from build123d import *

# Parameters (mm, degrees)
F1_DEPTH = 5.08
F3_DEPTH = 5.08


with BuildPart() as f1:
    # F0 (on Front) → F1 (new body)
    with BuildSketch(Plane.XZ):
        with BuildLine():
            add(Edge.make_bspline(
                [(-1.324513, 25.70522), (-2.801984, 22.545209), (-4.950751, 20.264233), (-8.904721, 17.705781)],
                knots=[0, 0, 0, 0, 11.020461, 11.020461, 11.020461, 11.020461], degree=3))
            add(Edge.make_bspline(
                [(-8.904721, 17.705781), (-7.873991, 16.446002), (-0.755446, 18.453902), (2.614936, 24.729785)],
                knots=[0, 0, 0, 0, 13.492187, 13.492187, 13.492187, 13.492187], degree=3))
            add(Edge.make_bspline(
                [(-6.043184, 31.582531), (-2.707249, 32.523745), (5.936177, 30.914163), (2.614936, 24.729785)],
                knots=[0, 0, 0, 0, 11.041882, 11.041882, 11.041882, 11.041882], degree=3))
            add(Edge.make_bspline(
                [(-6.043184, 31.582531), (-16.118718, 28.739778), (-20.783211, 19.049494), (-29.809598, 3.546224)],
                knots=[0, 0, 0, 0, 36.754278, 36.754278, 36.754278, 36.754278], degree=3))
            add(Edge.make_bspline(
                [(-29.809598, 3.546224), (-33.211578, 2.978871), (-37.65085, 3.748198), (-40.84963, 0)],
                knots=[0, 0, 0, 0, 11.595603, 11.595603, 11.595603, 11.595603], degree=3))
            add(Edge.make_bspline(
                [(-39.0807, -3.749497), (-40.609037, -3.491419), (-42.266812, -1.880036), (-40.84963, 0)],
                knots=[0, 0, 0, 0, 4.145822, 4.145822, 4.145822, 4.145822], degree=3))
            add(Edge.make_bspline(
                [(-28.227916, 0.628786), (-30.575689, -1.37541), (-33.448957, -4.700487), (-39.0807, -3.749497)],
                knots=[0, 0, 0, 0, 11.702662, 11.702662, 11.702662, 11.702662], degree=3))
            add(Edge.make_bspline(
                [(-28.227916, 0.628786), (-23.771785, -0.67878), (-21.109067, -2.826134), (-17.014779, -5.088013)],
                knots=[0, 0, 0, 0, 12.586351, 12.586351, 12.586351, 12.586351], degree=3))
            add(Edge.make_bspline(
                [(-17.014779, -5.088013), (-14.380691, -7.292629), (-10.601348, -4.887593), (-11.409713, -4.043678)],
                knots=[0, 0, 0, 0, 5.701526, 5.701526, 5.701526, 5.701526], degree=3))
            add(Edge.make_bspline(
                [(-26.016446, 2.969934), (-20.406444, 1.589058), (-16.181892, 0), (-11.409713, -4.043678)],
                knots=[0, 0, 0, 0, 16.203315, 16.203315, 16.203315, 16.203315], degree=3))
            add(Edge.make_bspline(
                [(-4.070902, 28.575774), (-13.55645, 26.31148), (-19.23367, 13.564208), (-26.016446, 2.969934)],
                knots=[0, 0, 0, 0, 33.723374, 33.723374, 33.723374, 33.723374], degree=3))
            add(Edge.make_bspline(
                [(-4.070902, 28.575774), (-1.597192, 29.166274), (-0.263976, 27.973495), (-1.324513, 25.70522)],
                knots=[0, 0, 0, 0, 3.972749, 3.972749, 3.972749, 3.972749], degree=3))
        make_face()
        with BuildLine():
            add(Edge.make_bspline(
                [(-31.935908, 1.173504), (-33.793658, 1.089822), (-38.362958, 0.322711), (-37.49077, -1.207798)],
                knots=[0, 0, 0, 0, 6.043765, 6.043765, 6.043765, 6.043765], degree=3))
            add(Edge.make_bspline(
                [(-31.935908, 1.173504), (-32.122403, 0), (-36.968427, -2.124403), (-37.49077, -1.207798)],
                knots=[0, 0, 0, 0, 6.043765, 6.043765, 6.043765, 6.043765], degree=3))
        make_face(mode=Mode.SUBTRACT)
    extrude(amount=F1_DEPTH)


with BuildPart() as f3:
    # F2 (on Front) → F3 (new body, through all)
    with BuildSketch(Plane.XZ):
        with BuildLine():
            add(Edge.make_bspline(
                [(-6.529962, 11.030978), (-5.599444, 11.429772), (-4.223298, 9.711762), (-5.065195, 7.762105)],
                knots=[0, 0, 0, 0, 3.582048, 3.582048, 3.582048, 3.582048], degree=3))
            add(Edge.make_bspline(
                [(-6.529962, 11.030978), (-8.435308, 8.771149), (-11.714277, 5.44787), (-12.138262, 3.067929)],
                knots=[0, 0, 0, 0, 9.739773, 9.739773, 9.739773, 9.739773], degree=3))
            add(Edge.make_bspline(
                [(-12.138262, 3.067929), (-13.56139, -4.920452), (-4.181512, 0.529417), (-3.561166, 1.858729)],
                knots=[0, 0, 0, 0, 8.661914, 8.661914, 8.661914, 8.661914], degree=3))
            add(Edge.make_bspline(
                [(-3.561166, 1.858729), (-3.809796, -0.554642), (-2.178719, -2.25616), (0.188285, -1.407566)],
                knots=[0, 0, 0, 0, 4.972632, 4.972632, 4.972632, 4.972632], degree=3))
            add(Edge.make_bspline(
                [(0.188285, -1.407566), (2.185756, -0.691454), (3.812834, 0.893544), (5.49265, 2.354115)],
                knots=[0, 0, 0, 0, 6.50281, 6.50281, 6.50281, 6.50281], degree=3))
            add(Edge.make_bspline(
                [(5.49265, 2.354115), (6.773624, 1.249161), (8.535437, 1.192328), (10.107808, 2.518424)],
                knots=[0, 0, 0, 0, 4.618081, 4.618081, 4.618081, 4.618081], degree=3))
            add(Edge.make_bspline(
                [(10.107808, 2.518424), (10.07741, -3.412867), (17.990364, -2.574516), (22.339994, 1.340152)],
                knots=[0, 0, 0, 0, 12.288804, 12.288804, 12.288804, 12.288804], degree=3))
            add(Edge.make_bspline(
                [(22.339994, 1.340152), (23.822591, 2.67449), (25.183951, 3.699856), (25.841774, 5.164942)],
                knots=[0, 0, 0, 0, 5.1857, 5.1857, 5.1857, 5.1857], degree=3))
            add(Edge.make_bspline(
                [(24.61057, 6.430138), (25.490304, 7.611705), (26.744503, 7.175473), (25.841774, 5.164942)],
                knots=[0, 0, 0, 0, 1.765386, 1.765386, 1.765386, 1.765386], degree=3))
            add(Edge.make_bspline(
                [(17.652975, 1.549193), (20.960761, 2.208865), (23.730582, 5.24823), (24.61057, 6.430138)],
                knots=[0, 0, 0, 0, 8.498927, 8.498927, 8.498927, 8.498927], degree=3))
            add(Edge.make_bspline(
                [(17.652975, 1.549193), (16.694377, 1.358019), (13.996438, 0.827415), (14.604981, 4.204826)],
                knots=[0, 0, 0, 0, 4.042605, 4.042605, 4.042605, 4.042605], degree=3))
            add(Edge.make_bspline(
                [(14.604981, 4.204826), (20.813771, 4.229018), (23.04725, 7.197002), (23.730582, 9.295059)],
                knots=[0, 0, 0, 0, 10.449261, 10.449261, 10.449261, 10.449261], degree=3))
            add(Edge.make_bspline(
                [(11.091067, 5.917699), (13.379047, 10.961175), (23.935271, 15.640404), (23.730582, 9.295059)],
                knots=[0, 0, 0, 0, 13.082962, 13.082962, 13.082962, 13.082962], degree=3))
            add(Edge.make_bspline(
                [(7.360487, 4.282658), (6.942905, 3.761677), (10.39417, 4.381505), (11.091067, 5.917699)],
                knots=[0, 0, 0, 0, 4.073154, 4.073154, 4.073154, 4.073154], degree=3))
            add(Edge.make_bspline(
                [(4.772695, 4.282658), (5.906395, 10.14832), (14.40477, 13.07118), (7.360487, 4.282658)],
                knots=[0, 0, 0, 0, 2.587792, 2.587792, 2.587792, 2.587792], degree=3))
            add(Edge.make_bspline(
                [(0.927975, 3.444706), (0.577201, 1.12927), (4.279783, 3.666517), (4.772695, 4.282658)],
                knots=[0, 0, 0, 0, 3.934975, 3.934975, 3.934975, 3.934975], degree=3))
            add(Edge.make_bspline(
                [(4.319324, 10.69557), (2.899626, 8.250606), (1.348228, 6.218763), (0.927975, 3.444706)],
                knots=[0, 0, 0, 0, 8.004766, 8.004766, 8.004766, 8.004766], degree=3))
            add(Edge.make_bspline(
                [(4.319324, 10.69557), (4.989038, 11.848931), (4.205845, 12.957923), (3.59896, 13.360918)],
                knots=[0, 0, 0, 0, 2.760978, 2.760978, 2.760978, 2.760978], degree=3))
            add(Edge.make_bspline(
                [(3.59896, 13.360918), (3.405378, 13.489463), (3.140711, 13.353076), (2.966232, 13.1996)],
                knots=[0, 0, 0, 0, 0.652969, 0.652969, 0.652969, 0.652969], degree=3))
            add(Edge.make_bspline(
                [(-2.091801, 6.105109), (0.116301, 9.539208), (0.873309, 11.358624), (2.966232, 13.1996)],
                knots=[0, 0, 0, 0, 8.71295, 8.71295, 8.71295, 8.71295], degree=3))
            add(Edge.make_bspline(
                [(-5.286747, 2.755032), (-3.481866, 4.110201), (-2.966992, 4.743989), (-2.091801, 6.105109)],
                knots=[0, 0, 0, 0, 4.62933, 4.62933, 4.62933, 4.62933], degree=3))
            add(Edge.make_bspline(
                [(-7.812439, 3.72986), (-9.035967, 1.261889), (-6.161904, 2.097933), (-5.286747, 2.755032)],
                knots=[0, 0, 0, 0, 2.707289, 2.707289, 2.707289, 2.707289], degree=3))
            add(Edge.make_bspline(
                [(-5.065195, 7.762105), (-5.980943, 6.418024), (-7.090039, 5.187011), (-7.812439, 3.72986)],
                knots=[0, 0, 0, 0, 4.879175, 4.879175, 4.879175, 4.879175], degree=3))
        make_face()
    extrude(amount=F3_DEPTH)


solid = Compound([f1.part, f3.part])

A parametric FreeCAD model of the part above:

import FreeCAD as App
import Part
import Sketcher
from FreeCAD import Vector
Q = App.Units.Quantity

doc = App.newDocument("Part")
body = doc.addObject("PartDesign::Body", "Body")

sketch1 = body.newObject("Sketcher::SketchObject", "Sketch")
sketch1.AttachmentSupport = (doc.getObject("XZ_Plane"), [""])
sketch1.MapMode = "FlatFace"
sketch1.addGeometry(Part.BSplineCurve([Vector(-1.324513, 25.70522, 0), Vector(-2.801984, 22.545209, 0), Vector(-4.950751, 20.264233, 0), Vector(-8.904721, 17.705781, 0)], [4, 4], [0, 11.020461], False, 3, [1, 1, 1, 1], False), False)
sketch1.addGeometry(Part.BSplineCurve([Vector(-8.904721, 17.705781, 0), Vector(-7.873991, 16.446002, 0), Vector(-0.755446, 18.453902, 0), Vector(2.614936, 24.729785, 0)], [4, 4], [0, 13.492187], False, 3, [1, 1, 1, 1], False), False)
sketch1.addGeometry(Part.BSplineCurve([Vector(-6.043184, 31.582531, 0), Vector(-2.707249, 32.523745, 0), Vector(5.936177, 30.914163, 0), Vector(2.614936, 24.729785, 0)], [4, 4], [0, 11.041882], False, 3, [1, 1, 1, 1], False), False)
sketch1.addGeometry(Part.BSplineCurve([Vector(-6.043184, 31.582531, 0), Vector(-16.118718, 28.739778, 0), Vector(-20.783211, 19.049494, 0), Vector(-29.809598, 3.546224, 0)], [4, 4], [0, 36.754278], False, 3, [1, 1, 1, 1], False), False)
sketch1.addGeometry(Part.BSplineCurve([Vector(-29.809598, 3.546224, 0), Vector(-33.211578, 2.978871, 0), Vector(-37.65085, 3.748198, 0), Vector(-40.84963, 0, 0)], [4, 4], [0, 11.595603], False, 3, [1, 1, 1, 1], False), False)
sketch1.addGeometry(Part.BSplineCurve([Vector(-39.0807, -3.749497, 0), Vector(-40.609037, -3.491419, 0), Vector(-42.266812, -1.880036, 0), Vector(-40.84963, 0, 0)], [4, 4], [0, 4.145822], False, 3, [1, 1, 1, 1], False), False)
sketch1.addGeometry(Part.BSplineCurve([Vector(-28.227916, 0.628786, 0), Vector(-30.575689, -1.37541, 0), Vector(-33.448957, -4.700487, 0), Vector(-39.0807, -3.749497, 0)], [4, 4], [0, 11.702662], False, 3, [1, 1, 1, 1], False), False)
sketch1.addGeometry(Part.BSplineCurve([Vector(-28.227916, 0.628786, 0), Vector(-23.771785, -0.67878, 0), Vector(-21.109067, -2.826134, 0), Vector(-17.014779, -5.088013, 0)], [4, 4], [0, 12.586351], False, 3, [1, 1, 1, 1], False), False)
sketch1.addGeometry(Part.BSplineCurve([Vector(-17.014779, -5.088013, 0), Vector(-14.380691, -7.292629, 0), Vector(-10.601348, -4.887593, 0), Vector(-11.409713, -4.043678, 0)], [4, 4], [0, 5.701526], False, 3, [1, 1, 1, 1], False), False)
sketch1.addGeometry(Part.BSplineCurve([Vector(-26.016446, 2.969934, 0), Vector(-20.406444, 1.589058, 0), Vector(-16.181892, 0, 0), Vector(-11.409713, -4.043678, 0)], [4, 4], [0, 16.203315], False, 3, [1, 1, 1, 1], False), False)
sketch1.addGeometry(Part.BSplineCurve([Vector(-4.070902, 28.575774, 0), Vector(-13.55645, 26.31148, 0), Vector(-19.23367, 13.564208, 0), Vector(-26.016446, 2.969934, 0)], [4, 4], [0, 33.723374], False, 3, [1, 1, 1, 1], False), False)
sketch1.addGeometry(Part.BSplineCurve([Vector(-4.070902, 28.575774, 0), Vector(-1.597192, 29.166274, 0), Vector(-0.263976, 27.973495, 0), Vector(-1.324513, 25.70522, 0)], [4, 4], [0, 3.972749], False, 3, [1, 1, 1, 1], False), False)
sketch1.addGeometry(Part.BSplineCurve([Vector(-31.935908, 1.173504, 0), Vector(-33.793658, 1.089822, 0), Vector(-38.362958, 0.322711, 0), Vector(-37.49077, -1.207798, 0)], [4, 4], [0, 6.043765], False, 3, [1, 1, 1, 1], False), False)
sketch1.addGeometry(Part.BSplineCurve([Vector(-31.935908, 1.173504, 0), Vector(-32.122403, 0, 0), Vector(-36.968427, -2.124403, 0), Vector(-37.49077, -1.207798, 0)], [4, 4], [0, 6.043765], False, 3, [1, 1, 1, 1], False), False)
sketch1.addConstraint(Sketcher.Constraint("Block", 0))
sketch1.addConstraint(Sketcher.Constraint("Block", 1))
sketch1.addConstraint(Sketcher.Constraint("Block", 2))
sketch1.addConstraint(Sketcher.Constraint("Block", 3))
sketch1.addConstraint(Sketcher.Constraint("Block", 4))
sketch1.addConstraint(Sketcher.Constraint("Block", 5))
sketch1.addConstraint(Sketcher.Constraint("Block", 6))
sketch1.addConstraint(Sketcher.Constraint("Block", 7))
sketch1.addConstraint(Sketcher.Constraint("Block", 8))
sketch1.addConstraint(Sketcher.Constraint("Block", 9))
sketch1.addConstraint(Sketcher.Constraint("Block", 10))
sketch1.addConstraint(Sketcher.Constraint("Block", 11))
sketch1.addConstraint(Sketcher.Constraint("Block", 12))
sketch1.addConstraint(Sketcher.Constraint("Block", 13))
pad1 = body.newObject("PartDesign::Pad", "Pad")
pad1.Profile = sketch1
pad1.Length = Q("0.2 in")
body2 = doc.addObject("PartDesign::Body", "Body001")

sketch2 = body2.newObject("Sketcher::SketchObject", "Sketch001")
sketch2.AttachmentSupport = (doc.getObject("XZ_Plane001"), [""])
sketch2.MapMode = "FlatFace"
sketch2.addGeometry(Part.BSplineCurve([Vector(-6.529962, 11.030978, 0), Vector(-5.599444, 11.429772, 0), Vector(-4.223298, 9.711762, 0), Vector(-5.065195, 7.762105, 0)], [4, 4], [0, 3.582048], False, 3, [1, 1, 1, 1], False), False)
sketch2.addGeometry(Part.BSplineCurve([Vector(-6.529962, 11.030978, 0), Vector(-8.435308, 8.771149, 0), Vector(-11.714277, 5.44787, 0), Vector(-12.138262, 3.067929, 0)], [4, 4], [0, 9.739773], False, 3, [1, 1, 1, 1], False), False)
sketch2.addGeometry(Part.BSplineCurve([Vector(-12.138262, 3.067929, 0), Vector(-13.56139, -4.920452, 0), Vector(-4.181512, 0.529417, 0), Vector(-3.561166, 1.858729, 0)], [4, 4], [0, 8.661914], False, 3, [1, 1, 1, 1], False), False)
sketch2.addGeometry(Part.BSplineCurve([Vector(-3.561166, 1.858729, 0), Vector(-3.809796, -0.554642, 0), Vector(-2.178719, -2.25616, 0), Vector(0.188285, -1.407566, 0)], [4, 4], [0, 4.972632], False, 3, [1, 1, 1, 1], False), False)
sketch2.addGeometry(Part.BSplineCurve([Vector(0.188285, -1.407566, 0), Vector(2.185756, -0.691454, 0), Vector(3.812834, 0.893544, 0), Vector(5.49265, 2.354115, 0)], [4, 4], [0, 6.50281], False, 3, [1, 1, 1, 1], False), False)
sketch2.addGeometry(Part.BSplineCurve([Vector(5.49265, 2.354115, 0), Vector(6.773624, 1.249161, 0), Vector(8.535437, 1.192328, 0), Vector(10.107808, 2.518424, 0)], [4, 4], [0, 4.618081], False, 3, [1, 1, 1, 1], False), False)
sketch2.addGeometry(Part.BSplineCurve([Vector(10.107808, 2.518424, 0), Vector(10.07741, -3.412867, 0), Vector(17.990364, -2.574516, 0), Vector(22.339994, 1.340152, 0)], [4, 4], [0, 12.288804], False, 3, [1, 1, 1, 1], False), False)
sketch2.addGeometry(Part.BSplineCurve([Vector(22.339994, 1.340152, 0), Vector(23.822591, 2.67449, 0), Vector(25.183951, 3.699856, 0), Vector(25.841774, 5.164942, 0)], [4, 4], [0, 5.1857], False, 3, [1, 1, 1, 1], False), False)
sketch2.addGeometry(Part.BSplineCurve([Vector(24.61057, 6.430138, 0), Vector(25.490304, 7.611705, 0), Vector(26.744503, 7.175473, 0), Vector(25.841774, 5.164942, 0)], [4, 4], [0, 1.765386], False, 3, [1, 1, 1, 1], False), False)
sketch2.addGeometry(Part.BSplineCurve([Vector(17.652975, 1.549193, 0), Vector(20.960761, 2.208865, 0), Vector(23.730582, 5.24823, 0), Vector(24.61057, 6.430138, 0)], [4, 4], [0, 8.498927], False, 3, [1, 1, 1, 1], False), False)
sketch2.addGeometry(Part.BSplineCurve([Vector(17.652975, 1.549193, 0), Vector(16.694377, 1.358019, 0), Vector(13.996438, 0.827415, 0), Vector(14.604981, 4.204826, 0)], [4, 4], [0, 4.042605], False, 3, [1, 1, 1, 1], False), False)
sketch2.addGeometry(Part.BSplineCurve([Vector(14.604981, 4.204826, 0), Vector(20.813771, 4.229018, 0), Vector(23.04725, 7.197002, 0), Vector(23.730582, 9.295059, 0)], [4, 4], [0, 10.449261], False, 3, [1, 1, 1, 1], False), False)
sketch2.addGeometry(Part.BSplineCurve([Vector(11.091067, 5.917699, 0), Vector(13.379047, 10.961175, 0), Vector(23.935271, 15.640404, 0), Vector(23.730582, 9.295059, 0)], [4, 4], [0, 13.082962], False, 3, [1, 1, 1, 1], False), False)
sketch2.addGeometry(Part.BSplineCurve([Vector(7.360487, 4.282658, 0), Vector(6.942905, 3.761677, 0), Vector(10.39417, 4.381505, 0), Vector(11.091067, 5.917699, 0)], [4, 4], [0, 4.073154], False, 3, [1, 1, 1, 1], False), False)
sketch2.addGeometry(Part.BSplineCurve([Vector(4.772695, 4.282658, 0), Vector(5.906395, 10.14832, 0), Vector(14.40477, 13.07118, 0), Vector(7.360487, 4.282658, 0)], [4, 4], [0, 2.587792], False, 3, [1, 1, 1, 1], False), False)
sketch2.addGeometry(Part.BSplineCurve([Vector(0.927975, 3.444706, 0), Vector(0.577201, 1.12927, 0), Vector(4.279783, 3.666517, 0), Vector(4.772695, 4.282658, 0)], [4, 4], [0, 3.934975], False, 3, [1, 1, 1, 1], False), False)
sketch2.addGeometry(Part.BSplineCurve([Vector(4.319324, 10.69557, 0), Vector(2.899626, 8.250606, 0), Vector(1.348228, 6.218763, 0), Vector(0.927975, 3.444706, 0)], [4, 4], [0, 8.004766], False, 3, [1, 1, 1, 1], False), False)
sketch2.addGeometry(Part.BSplineCurve([Vector(4.319324, 10.69557, 0), Vector(4.989038, 11.848931, 0), Vector(4.205845, 12.957923, 0), Vector(3.59896, 13.360918, 0)], [4, 4], [0, 2.760978], False, 3, [1, 1, 1, 1], False), False)
sketch2.addGeometry(Part.BSplineCurve([Vector(3.59896, 13.360918, 0), Vector(3.405378, 13.489463, 0), Vector(3.140711, 13.353076, 0), Vector(2.966232, 13.1996, 0)], [4, 4], [0, 0.652969], False, 3, [1, 1, 1, 1], False), False)
sketch2.addGeometry(Part.BSplineCurve([Vector(-2.091801, 6.105109, 0), Vector(0.116301, 9.539208, 0), Vector(0.873309, 11.358624, 0), Vector(2.966232, 13.1996, 0)], [4, 4], [0, 8.71295], False, 3, [1, 1, 1, 1], False), False)
sketch2.addGeometry(Part.BSplineCurve([Vector(-5.286747, 2.755032, 0), Vector(-3.481866, 4.110201, 0), Vector(-2.966992, 4.743989, 0), Vector(-2.091801, 6.105109, 0)], [4, 4], [0, 4.62933], False, 3, [1, 1, 1, 1], False), False)
sketch2.addGeometry(Part.BSplineCurve([Vector(-7.812439, 3.72986, 0), Vector(-9.035967, 1.261889, 0), Vector(-6.161904, 2.097933, 0), Vector(-5.286747, 2.755032, 0)], [4, 4], [0, 2.707289], False, 3, [1, 1, 1, 1], False), False)
sketch2.addGeometry(Part.BSplineCurve([Vector(-5.065195, 7.762105, 0), Vector(-5.980943, 6.418024, 0), Vector(-7.090039, 5.187011, 0), Vector(-7.812439, 3.72986, 0)], [4, 4], [0, 4.879175], False, 3, [1, 1, 1, 1], False), False)
sketch2.addConstraint(Sketcher.Constraint("Block", 0))
sketch2.addConstraint(Sketcher.Constraint("Block", 1))
sketch2.addConstraint(Sketcher.Constraint("Block", 2))
sketch2.addConstraint(Sketcher.Constraint("Block", 3))
sketch2.addConstraint(Sketcher.Constraint("Block", 4))
sketch2.addConstraint(Sketcher.Constraint("Block", 5))
sketch2.addConstraint(Sketcher.Constraint("Block", 6))
sketch2.addConstraint(Sketcher.Constraint("Block", 7))
sketch2.addConstraint(Sketcher.Constraint("Block", 8))
sketch2.addConstraint(Sketcher.Constraint("Block", 9))
sketch2.addConstraint(Sketcher.Constraint("Block", 10))
sketch2.addConstraint(Sketcher.Constraint("Block", 11))
sketch2.addConstraint(Sketcher.Constraint("Block", 12))
sketch2.addConstraint(Sketcher.Constraint("Block", 13))
sketch2.addConstraint(Sketcher.Constraint("Block", 14))
sketch2.addConstraint(Sketcher.Constraint("Block", 15))
sketch2.addConstraint(Sketcher.Constraint("Block", 16))
sketch2.addConstraint(Sketcher.Constraint("Block", 17))
sketch2.addConstraint(Sketcher.Constraint("Block", 18))
sketch2.addConstraint(Sketcher.Constraint("Block", 19))
sketch2.addConstraint(Sketcher.Constraint("Block", 20))
sketch2.addConstraint(Sketcher.Constraint("Block", 21))
sketch2.addConstraint(Sketcher.Constraint("Block", 22))
pad2 = body2.newObject("PartDesign::Pad", "Pad001")
pad2.Profile = sketch2
pad2.Length = Q("0.2 in")

doc.recompute()
